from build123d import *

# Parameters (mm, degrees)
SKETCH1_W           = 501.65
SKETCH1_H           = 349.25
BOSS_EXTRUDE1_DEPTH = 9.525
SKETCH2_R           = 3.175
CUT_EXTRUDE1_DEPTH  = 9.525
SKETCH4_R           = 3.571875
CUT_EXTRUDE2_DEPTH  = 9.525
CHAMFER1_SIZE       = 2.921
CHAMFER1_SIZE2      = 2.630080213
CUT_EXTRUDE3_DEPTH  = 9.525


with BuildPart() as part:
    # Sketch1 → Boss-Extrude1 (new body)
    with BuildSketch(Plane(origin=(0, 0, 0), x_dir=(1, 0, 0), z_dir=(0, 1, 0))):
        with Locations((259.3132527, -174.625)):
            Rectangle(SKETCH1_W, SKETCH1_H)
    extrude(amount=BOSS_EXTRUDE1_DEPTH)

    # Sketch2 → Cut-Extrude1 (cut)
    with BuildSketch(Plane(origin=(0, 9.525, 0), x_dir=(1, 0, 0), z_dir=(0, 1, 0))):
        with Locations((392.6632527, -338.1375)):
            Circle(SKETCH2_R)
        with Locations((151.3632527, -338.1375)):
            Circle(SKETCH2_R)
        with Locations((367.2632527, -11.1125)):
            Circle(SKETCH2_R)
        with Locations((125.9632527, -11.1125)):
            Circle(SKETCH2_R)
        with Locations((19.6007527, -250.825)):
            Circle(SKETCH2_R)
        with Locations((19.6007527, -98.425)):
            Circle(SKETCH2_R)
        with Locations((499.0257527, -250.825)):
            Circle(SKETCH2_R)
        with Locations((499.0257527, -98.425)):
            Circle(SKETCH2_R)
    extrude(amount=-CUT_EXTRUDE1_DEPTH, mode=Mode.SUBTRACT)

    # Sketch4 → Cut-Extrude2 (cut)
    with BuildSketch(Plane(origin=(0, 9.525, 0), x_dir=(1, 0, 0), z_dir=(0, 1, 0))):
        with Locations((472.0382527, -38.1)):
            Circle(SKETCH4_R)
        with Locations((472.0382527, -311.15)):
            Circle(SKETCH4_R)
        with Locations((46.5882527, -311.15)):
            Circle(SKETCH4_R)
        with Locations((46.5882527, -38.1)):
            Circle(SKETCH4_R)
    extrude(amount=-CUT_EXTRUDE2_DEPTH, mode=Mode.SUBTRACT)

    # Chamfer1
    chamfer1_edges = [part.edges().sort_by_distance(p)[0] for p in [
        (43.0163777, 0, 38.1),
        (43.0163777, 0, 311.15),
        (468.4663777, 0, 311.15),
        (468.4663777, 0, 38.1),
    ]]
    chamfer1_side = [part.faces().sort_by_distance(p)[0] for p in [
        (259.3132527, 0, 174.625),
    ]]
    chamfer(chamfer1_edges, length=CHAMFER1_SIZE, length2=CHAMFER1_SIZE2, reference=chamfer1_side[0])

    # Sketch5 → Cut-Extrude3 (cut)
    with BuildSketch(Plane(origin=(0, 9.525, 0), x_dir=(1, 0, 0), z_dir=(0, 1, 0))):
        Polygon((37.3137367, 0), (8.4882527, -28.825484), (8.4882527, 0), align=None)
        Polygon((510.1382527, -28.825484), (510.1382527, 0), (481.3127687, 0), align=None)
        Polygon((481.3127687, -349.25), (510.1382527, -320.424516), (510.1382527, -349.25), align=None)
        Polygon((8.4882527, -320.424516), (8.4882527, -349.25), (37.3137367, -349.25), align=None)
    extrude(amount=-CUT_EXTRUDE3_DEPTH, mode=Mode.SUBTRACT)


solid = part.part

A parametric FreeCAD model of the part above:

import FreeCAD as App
import Part
import Sketcher
Q = App.Units.Quantity


def edges_at(feature, points):
    """Names of the edges that pass closest to the given points."""
    edges = feature.Shape.Edges
    near = lambda p: min(range(len(edges)), key=lambda i: edges[i].distToShape(Part.Vertex(*p))[0])
    return sorted({f"Edge{near(p) + 1}" for p in points})


def add_polygon(sketch, points):
    """Adds a closed chain of lines whose ends are joined by coincident constraints."""
    first, n = sketch.GeometryCount, len(points)
    for a, b in zip(points, points[1:] + points[:1]):
        sketch.addGeometry(Part.LineSegment(App.Vector(*a, 0), App.Vector(*b, 0)), False)
    for i in range(n):
        sketch.addConstraint(Sketcher.Constraint("Coincident", first + i, 2, first + (i + 1) % n, 1))

doc = App.newDocument("Part")
body = doc.addObject("PartDesign::Body", "Body")

# Sketch on XZ plane
sketch1 = body.newObject("Sketcher::SketchObject", "Sketch")
sketch1.AttachmentSupport = (doc.getObject("XZ_Plane"), [""])
sketch1.MapMode = "FlatFace"
add_polygon(sketch1, [(8, 0), (8, 349), (510, 349), (510, 0)])  # lines 0-3
sketch1.addConstraint([
    Sketcher.Constraint("Vertical", 0),
    Sketcher.Constraint("Horizontal", 1),
    Sketcher.Constraint("Vertical", 2),
    Sketcher.Constraint("Horizontal", 3),
    Sketcher.Constraint("PointOnObject", 2, 2, -1),
    Sketcher.Constraint("DistanceX", 1, 1, 1, 2, Q("19.75 in")),
    Sketcher.Constraint("DistanceY", 0, 1, 0, 2, Q("13.75 in")),
    Sketcher.Constraint("DistanceX", -1, 1, 0, 2, 8.488253),
])
pad1 = body.newObject("PartDesign::Pad", "Pad")
pad1.Profile = sketch1
pad1.Length = Q("0.375 in")
pad1.Reversed = True

# Sketch on XZ plane
sketch2 = body.newObject("Sketcher::SketchObject", "Sketch001")
sketch2.AttachmentSupport = (doc.getObject("XZ_Plane"), [""])
sketch2.MapMode = "FlatFace"
sketch2.AttachmentOffset = App.Placement(App.Vector(0, 0, -0.375 * 25.4), App.Rotation())
sketch2.addGeometry([
    Part.Circle(App.Vector(392.7, 338.1, 0), App.Vector(0, 0, 1), 3.2),  # 0
    Part.Circle(App.Vector(151.4, 338.1, 0), App.Vector(0, 0, 1), 3.2),  # 1
    Part.Circle(App.Vector(367.3, 11.1, 0), App.Vector(0, 0, 1), 3.2),  # 2
    Part.Circle(App.Vector(126, 11.1, 0), App.Vector(0, 0, 1), 3.2),  # 3
    Part.Circle(App.Vector(19.6, 250.8, 0), App.Vector(0, 0, 1), 3.2),  # 4
    Part.Circle(App.Vector(19.6, 98.4, 0), App.Vector(0, 0, 1), 3.2),  # 5
    Part.Circle(App.Vector(499, 250.8, 0), App.Vector(0, 0, 1), 3.2),  # 6
    Part.Circle(App.Vector(499, 98.4, 0), App.Vector(0, 0, 1), 3.2),  # 7
], False)
sketch2.addConstraint([
    Sketcher.Constraint("Equal", 0, 1),
    Sketcher.Constraint("Equal", 1, 2),
    Sketcher.Constraint("Equal", 2, 3),
    Sketcher.Constraint("Equal", 3, 4),
    Sketcher.Constraint("Equal", 4, 5),
    Sketcher.Constraint("Equal", 5, 6),
    Sketcher.Constraint("Equal", 6, 7),
    Sketcher.Constraint("Horizontal", 0, 3, 1, 3),
    Sketcher.Constraint("Horizontal", 2, 3, 3, 3),
    Sketcher.Constraint("Horizontal", 4, 3, 6, 3),
    Sketcher.Constraint("Horizontal", 5, 3, 7, 3),
    Sketcher.Constraint("Vertical", 4, 3, 5, 3),
    Sketcher.Constraint("Vertical", 6, 3, 7, 3),
    Sketcher.Constraint("Diameter", 0, Q("0.25 in")),
    Sketcher.Constraint("DistanceX", 2, 3, 0, 3, Q("1 in")),
    Sketcher.Constraint("DistanceX", 3, 3, 1, 3, Q("1 in")),
    Sketcher.Constraint("DistanceY", 5, 3, 4, 3, Q("6 in")),
    Sketcher.Constraint("DistanceX", 1, 3, 0, 3, Q("9.5 in")),
    Sketcher.Constraint("DistanceY", -1, 1, 0, 3, Q("13.3125 in")),
    Sketcher.Constraint("DistanceY", -1, 1, 2, 3, Q("0.4375 in")),
    Sketcher.Constraint("DistanceY", -1, 1, 4, 3, Q("9.875 in")),
    Sketcher.Constraint("DistanceX", 4, 3, 1, 3, Q("5.1875 in")),
    Sketcher.Constraint("DistanceX", 0, 3, 6, 3, Q("4.1875 in")),
    Sketcher.Constraint("DistanceX", -1, 1, 0, 3, 392.663253),
])
pocket1 = body.newObject("PartDesign::Pocket", "Pocket")
pocket1.Profile = sketch2
pocket1.Length = Q("0.375 in")
pocket1.Reversed = True

# Sketch on XZ plane
sketch3 = body.newObject("Sketcher::SketchObject", "Sketch002")
sketch3.AttachmentSupport = (doc.getObject("XZ_Plane"), [""])
sketch3.MapMode = "FlatFace"
sketch3.AttachmentOffset = App.Placement(App.Vector(0, 0, -0.375 * 25.4), App.Rotation())
sketch3.addGeometry([
    Part.Circle(App.Vector(472, 38.1, 0), App.Vector(0, 0, 1), 3.6),
    Part.Circle(App.Vector(472, 311.1, 0), App.Vector(0, 0, 1), 3.6),
    Part.Circle(App.Vector(46.6, 311.1, 0), App.Vector(0, 0, 1), 3.6),
    Part.Circle(App.Vector(46.6, 38.1, 0), App.Vector(0, 0, 1), 3.6),
], False)
sketch3.addConstraint([
    Sketcher.Constraint("Equal", 0, 1),
    Sketcher.Constraint("Equal", 1, 2),
    Sketcher.Constraint("Equal", 2, 3),
    Sketcher.Constraint("Horizontal", 1, 3, 2, 3),
    Sketcher.Constraint("Horizontal", 0, 3, 3, 3),
    Sketcher.Constraint("Vertical", 0, 3, 1, 3),
    Sketcher.Constraint("Vertical", 2, 3, 3, 3),
    Sketcher.Constraint("Diameter", 0, Q("0.28125 in")),
    Sketcher.Constraint("DistanceY", -1, 1, 0, 3, Q("1.5 in")),
    Sketcher.Constraint("DistanceY", -1, 1, 1, 3, Q("12.25 in")),
    Sketcher.Constraint("DistanceX", 2, 3, 1, 3, Q("16.75 in")),
    Sketcher.Constraint("DistanceX", -1, 1, 0, 3, 472.038253),
])
pocket2 = body.newObject("PartDesign::Pocket", "Pocket001")
pocket2.Profile = sketch3
pocket2.Length = Q("0.375 in")
pocket2.Reversed = True
doc.recompute()

chamfer = body.newObject("PartDesign::Chamfer", "Chamfer")
chamfer.Base = (pocket2, edges_at(pocket2, [
    (43.016, 0, 38.1),
    (43.016, 0, 311.15),
    (468.466, 0, 311.15),
    (468.466, 0, 38.1),
]))
chamfer.ChamferType = "Two distances"
chamfer.Size = Q("0.115 in")
chamfer.Size2 = 2.63008

# Sketch on XZ plane
sketch4 = body.newObject("Sketcher::SketchObject", "Sketch003")
sketch4.AttachmentSupport = (doc.getObject("XZ_Plane"), [""])
sketch4.MapMode = "FlatFace"
sketch4.AttachmentOffset = App.Placement(App.Vector(0, 0, -0.375 * 25.4), App.Rotation())
add_polygon(sketch4, [(8, 29), (37, 0), (8, 0)])  # lines 0-2
add_polygon(sketch4, [(510, 29), (510, 0), (481, 0)])  # lines 3-5
add_polygon(sketch4, [(510, 320), (481, 349), (510, 349)])  # lines 6-8
add_polygon(sketch4, [(8, 320), (8, 349), (37, 349)])  # lines 9-11
sketch4.addConstraint([
    Sketcher.Constraint("Horizontal", 1),
    Sketcher.Constraint("Vertical", 2),
    Sketcher.Constraint("Vertical", 3),
    Sketcher.Constraint("Horizontal", 4),
    Sketcher.Constraint("Horizontal", 7),
    Sketcher.Constraint("Vertical", 8),
    Sketcher.Constraint("Vertical", 9),
    Sketcher.Constraint("Horizontal", 10),
    Sketcher.Constraint("PointOnObject", 0, 2, -1),
    Sketcher.Constraint("PointOnObject", 3, 2, -1),
    Sketcher.Constraint("Perpendicular", 0, 5),
    Sketcher.Constraint("Perpendicular", 5, 6),
    Sketcher.Constraint("Perpendicular", 6, 11),
    Sketcher.Constraint("Horizontal", 2, 2, 5, 2),
    Sketcher.Constraint("Horizontal", 7, 2, 9, 2),
    Sketcher.Constraint("Horizontal", 8, 2, 11, 2),
    Sketcher.Constraint("Vertical", 4, 2, 6, 2),
    Sketcher.Constraint("Vertical", 5, 2, 7, 2),
    Sketcher.Constraint("Vertical", 2, 2, 9, 2),
    Sketcher.Constraint("Vertical", 0, 2, 10, 2),
    Sketcher.Constraint("DistanceY", -1, 1, 6, 2, Q("13.75 in")),
    Sketcher.Constraint("DistanceX", 1, 2, 3, 2, Q("19.75 in")),
    Sketcher.Constraint("Distance", 0, 40.76539),
    Sketcher.Constraint("DistanceX", -1, 1, 4, 2, 481.312769),
])
pocket3 = body.newObject("PartDesign::Pocket", "Pocket002")
pocket3.Profile = sketch4
pocket3.Length = Q("0.375 in")
pocket3.Reversed = True

doc.recompute()
